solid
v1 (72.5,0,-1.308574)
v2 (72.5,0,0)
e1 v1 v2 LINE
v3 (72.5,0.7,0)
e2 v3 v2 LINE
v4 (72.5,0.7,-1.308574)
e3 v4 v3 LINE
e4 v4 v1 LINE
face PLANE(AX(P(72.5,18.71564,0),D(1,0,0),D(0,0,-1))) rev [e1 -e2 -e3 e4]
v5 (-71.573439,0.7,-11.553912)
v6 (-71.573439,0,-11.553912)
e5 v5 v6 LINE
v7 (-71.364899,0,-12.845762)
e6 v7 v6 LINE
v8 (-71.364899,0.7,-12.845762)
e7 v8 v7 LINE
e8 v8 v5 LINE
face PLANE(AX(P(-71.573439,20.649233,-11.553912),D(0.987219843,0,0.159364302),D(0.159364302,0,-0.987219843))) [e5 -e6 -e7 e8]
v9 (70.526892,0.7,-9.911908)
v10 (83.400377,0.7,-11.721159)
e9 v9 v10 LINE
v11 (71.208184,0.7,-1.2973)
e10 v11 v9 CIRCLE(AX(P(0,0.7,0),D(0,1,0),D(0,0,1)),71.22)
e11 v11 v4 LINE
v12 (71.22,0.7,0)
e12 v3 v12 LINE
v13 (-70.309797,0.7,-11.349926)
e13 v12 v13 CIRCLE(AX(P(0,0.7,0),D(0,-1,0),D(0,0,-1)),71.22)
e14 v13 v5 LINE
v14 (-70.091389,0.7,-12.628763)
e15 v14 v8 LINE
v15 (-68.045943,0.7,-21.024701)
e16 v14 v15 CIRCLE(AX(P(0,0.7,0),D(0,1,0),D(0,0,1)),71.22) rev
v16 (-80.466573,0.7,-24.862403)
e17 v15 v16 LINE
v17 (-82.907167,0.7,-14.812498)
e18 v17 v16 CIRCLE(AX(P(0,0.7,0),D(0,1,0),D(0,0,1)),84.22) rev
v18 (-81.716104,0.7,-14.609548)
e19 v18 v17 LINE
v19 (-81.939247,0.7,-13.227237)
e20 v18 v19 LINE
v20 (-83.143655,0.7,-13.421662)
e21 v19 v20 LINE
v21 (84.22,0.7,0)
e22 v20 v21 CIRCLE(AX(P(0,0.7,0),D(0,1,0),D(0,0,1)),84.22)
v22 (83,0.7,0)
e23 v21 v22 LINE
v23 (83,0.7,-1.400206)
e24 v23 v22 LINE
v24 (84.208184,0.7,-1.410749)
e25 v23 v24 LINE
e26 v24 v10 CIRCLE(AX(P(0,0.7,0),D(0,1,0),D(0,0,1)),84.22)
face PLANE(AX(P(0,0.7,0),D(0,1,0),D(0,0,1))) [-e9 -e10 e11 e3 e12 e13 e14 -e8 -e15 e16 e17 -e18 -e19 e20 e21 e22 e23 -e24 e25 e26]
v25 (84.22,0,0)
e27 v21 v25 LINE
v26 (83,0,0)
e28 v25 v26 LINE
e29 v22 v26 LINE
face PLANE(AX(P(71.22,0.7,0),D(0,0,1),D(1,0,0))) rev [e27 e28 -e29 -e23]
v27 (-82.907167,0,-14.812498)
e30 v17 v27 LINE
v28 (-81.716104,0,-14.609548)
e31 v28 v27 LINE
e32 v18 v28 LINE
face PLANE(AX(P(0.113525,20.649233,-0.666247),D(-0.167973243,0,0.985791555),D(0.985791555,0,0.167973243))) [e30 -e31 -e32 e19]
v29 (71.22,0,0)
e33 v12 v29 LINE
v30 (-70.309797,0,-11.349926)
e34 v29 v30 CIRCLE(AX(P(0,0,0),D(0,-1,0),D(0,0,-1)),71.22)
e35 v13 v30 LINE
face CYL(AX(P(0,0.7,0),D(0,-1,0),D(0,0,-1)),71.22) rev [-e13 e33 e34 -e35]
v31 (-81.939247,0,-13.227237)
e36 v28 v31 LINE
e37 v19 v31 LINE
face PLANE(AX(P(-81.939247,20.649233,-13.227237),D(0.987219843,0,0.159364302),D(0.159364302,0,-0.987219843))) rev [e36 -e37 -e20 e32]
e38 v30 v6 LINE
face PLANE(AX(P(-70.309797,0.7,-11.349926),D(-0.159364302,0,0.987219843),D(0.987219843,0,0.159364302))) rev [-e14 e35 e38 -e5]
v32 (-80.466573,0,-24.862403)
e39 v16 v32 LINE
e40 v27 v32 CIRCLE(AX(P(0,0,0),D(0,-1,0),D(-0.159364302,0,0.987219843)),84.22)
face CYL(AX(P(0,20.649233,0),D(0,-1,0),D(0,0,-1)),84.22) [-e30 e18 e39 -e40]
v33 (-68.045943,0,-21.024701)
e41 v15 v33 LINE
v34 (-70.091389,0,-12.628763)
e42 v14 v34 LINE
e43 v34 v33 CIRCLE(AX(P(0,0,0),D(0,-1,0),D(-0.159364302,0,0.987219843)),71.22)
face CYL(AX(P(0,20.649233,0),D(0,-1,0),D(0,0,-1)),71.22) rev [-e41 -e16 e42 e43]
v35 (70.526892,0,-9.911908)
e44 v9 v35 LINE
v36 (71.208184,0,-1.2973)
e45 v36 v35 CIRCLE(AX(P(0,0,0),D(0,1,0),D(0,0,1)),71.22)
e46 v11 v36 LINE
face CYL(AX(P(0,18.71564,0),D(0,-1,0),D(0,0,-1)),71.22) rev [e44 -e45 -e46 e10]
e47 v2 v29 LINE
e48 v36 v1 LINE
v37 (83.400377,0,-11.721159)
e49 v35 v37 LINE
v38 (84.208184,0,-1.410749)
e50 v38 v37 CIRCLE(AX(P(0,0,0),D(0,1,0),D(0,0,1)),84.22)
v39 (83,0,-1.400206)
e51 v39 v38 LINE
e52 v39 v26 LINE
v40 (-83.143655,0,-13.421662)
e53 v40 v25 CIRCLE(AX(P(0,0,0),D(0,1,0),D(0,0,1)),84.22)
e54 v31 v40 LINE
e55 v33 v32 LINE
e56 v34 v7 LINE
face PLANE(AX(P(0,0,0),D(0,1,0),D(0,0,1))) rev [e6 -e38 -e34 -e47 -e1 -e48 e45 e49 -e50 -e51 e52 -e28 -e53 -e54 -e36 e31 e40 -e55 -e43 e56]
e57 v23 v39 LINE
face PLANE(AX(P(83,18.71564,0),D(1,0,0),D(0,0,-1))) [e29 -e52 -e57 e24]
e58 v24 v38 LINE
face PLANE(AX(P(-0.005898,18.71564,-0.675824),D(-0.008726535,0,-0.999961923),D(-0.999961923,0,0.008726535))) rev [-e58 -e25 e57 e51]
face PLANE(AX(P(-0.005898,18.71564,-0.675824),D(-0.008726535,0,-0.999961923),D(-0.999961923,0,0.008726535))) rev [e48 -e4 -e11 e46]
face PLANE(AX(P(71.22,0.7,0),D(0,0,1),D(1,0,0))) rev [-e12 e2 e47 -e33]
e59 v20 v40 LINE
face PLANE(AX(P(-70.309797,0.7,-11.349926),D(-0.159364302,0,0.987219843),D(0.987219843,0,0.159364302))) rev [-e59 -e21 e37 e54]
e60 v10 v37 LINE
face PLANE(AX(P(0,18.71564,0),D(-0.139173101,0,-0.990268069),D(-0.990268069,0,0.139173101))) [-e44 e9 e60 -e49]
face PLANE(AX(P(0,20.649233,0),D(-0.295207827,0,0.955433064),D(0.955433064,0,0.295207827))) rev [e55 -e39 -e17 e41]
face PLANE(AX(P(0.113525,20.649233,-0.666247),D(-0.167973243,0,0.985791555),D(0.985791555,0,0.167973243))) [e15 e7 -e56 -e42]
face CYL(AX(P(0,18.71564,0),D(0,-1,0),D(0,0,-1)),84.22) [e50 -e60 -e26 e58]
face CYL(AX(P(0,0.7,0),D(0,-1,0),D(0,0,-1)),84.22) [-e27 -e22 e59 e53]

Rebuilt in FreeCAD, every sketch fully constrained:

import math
import FreeCAD as App
import Part
import Sketcher
Q = App.Units.Quantity

doc = App.newDocument("Part")
body = doc.addObject("PartDesign::Body", "Body")

sketch1 = doc.addObject("Sketcher::SketchObject", "Sketch")
body.addObject(sketch1)
sketch1.AttachmentSupport = (doc.XZ_Plane, [""])
sketch1.MapMode = "FlatFace"
sketch1.addGeometry([
    Part.LineSegment(App.Vector(-70, -11, 0), App.Vector(-83, -13, 0)),
    Part.ArcOfCircle(Part.Circle(App.Vector(0, 0, 0), App.Vector(0, 0, 1), 84), math.radians(0), math.radians(189)),
    Part.LineSegment(App.Vector(84, 0, 0), App.Vector(71, 0, 0)),
    Part.ArcOfCircle(Part.Circle(App.Vector(0, 0, 0), App.Vector(0, 0, 1), 71), math.radians(0), math.radians(189)),
], False)
sketch1.addConstraint([
    Sketcher.Constraint("Coincident", 0, 2, 1, 2),
    Sketcher.Constraint("Coincident", 1, 1, 2, 1),
    Sketcher.Constraint("Coincident", 2, 2, 3, 1),
    Sketcher.Constraint("Coincident", 3, 2, 0, 1),
    Sketcher.Constraint("Horizontal", 2),
    Sketcher.Constraint("Coincident", 1, 3, -1, 1),
    Sketcher.Constraint("Coincident", 3, 3, -1, 1),
    Sketcher.Constraint("PointOnObject", 1, 1, -1),
    Sketcher.Constraint("DistanceX", 2, 2, 2, 1, 13.0),
    Sketcher.Constraint("Radius", 1, 84.22),
    Sketcher.Constraint("Angle", 0, Q("-170.83 deg")),
    Sketcher.Constraint("DistanceY", 0, 2, -1, 1, 13.421662),
])
pad1 = doc.addObject("PartDesign::Pad", "Pad")
body.addObject(pad1)
pad1.Profile = sketch1
pad1.Length = 0.7
pad1.Reversed = True

sketch2 = doc.addObject("Sketcher::SketchObject", "Sketch001")
body.addObject(sketch2)
sketch2.AttachmentSupport = (doc.XZ_Plane, [""])
sketch2.MapMode = "FlatFace"
sketch2.addGeometry([
    Part.LineSegment(App.Vector(72.5, -1.3, 0), App.Vector(72.5, 0, 0)),
    Part.LineSegment(App.Vector(72.5, 0, 0), App.Vector(83, 0, 0)),
    Part.LineSegment(App.Vector(83, 0, 0), App.Vector(83, -1.4, 0)),
    Part.LineSegment(App.Vector(83, -1.4, 0), App.Vector(84.2, -1.4, 0)),
    Part.ArcOfCircle(Part.Circle(App.Vector(0, 0, 0), App.Vector(0, 0, 1), 84.2), math.radians(-8), math.radians(-0.96)),
    Part.LineSegment(App.Vector(83.4, -11.7, 0), App.Vector(70.5, -9.9, 0)),
    Part.ArcOfCircle(Part.Circle(App.Vector(0, 0, 0), App.Vector(0, 0, 1), 71.2), math.radians(-8), math.radians(-1.04)),
    Part.LineSegment(App.Vector(71.2, -1.3, 0), App.Vector(72.5, -1.3, 0)),
], False)
sketch2.addConstraint([
    Sketcher.Constraint("Coincident", 0, 2, 1, 1),
    Sketcher.Constraint("Coincident", 1, 2, 2, 1),
    Sketcher.Constraint("Coincident", 2, 2, 3, 1),
    Sketcher.Constraint("Coincident", 3, 2, 4, 2),
    Sketcher.Constraint("Coincident", 4, 1, 5, 1),
    Sketcher.Constraint("Coincident", 5, 2, 6, 1),
    Sketcher.Constraint("Coincident", 6, 2, 7, 1),
    Sketcher.Constraint("Coincident", 7, 2, 0, 1),
    Sketcher.Constraint("Vertical", 0),
    Sketcher.Constraint("Horizontal", 1),
    Sketcher.Constraint("Vertical", 2),
    Sketcher.Constraint("Coincident", 4, 3, -1, 1),
    Sketcher.Constraint("Coincident", 6, 3, -1, 1),
    Sketcher.Constraint("PointOnObject", 0, 2, -1),
    Sketcher.Constraint("Parallel", 3, 7),
    Sketcher.Constraint("Angle", 5, Q("172 deg")),
    Sketcher.Constraint("Radius", 4, 84.22),
    Sketcher.Constraint("Radius", 6, 71.22),
    Sketcher.Constraint("DistanceX", 1, 1, 1, 2, 10.5),
    Sketcher.Constraint("DistanceX", -1, 1, 1, 2, 83.0),
    Sketcher.Constraint("Angle", 3, Q("-0.5 deg")),
    Sketcher.Constraint("DistanceX", 6, 2, 3, 2, 13.0),
    Sketcher.Constraint("DistanceY", 6, 2, -1, 1, 1.2973),
    Sketcher.Constraint("DistanceY", 4, 1, -1, 1, 11.721159),
])
pad2 = doc.addObject("PartDesign::Pad", "Pad001")
body.addObject(pad2)
pad2.Profile = sketch2
pad2.Length = 0.7
pad2.Reversed = True
doc.recompute()

datumplane = doc.addObject("PartDesign::Plane", "DatumPlane")
body.addObject(datumplane)
datumplane.Placement = App.Placement(App.Vector(0, 0, 0), App.Rotation(App.Vector(0.079937965, 0, -0.99679984), App.Vector(0, -1, 0), App.Vector(-0.99679984, 0, -0.079937965), "ZXY"))
mirrored = doc.addObject("PartDesign::Mirrored", "Mirrored")
body.addObject(mirrored)
mirrored.Originals = [pad2]
mirrored.MirrorPlane = (datumplane, [""])
body.Tip = mirrored

doc.recompute()
